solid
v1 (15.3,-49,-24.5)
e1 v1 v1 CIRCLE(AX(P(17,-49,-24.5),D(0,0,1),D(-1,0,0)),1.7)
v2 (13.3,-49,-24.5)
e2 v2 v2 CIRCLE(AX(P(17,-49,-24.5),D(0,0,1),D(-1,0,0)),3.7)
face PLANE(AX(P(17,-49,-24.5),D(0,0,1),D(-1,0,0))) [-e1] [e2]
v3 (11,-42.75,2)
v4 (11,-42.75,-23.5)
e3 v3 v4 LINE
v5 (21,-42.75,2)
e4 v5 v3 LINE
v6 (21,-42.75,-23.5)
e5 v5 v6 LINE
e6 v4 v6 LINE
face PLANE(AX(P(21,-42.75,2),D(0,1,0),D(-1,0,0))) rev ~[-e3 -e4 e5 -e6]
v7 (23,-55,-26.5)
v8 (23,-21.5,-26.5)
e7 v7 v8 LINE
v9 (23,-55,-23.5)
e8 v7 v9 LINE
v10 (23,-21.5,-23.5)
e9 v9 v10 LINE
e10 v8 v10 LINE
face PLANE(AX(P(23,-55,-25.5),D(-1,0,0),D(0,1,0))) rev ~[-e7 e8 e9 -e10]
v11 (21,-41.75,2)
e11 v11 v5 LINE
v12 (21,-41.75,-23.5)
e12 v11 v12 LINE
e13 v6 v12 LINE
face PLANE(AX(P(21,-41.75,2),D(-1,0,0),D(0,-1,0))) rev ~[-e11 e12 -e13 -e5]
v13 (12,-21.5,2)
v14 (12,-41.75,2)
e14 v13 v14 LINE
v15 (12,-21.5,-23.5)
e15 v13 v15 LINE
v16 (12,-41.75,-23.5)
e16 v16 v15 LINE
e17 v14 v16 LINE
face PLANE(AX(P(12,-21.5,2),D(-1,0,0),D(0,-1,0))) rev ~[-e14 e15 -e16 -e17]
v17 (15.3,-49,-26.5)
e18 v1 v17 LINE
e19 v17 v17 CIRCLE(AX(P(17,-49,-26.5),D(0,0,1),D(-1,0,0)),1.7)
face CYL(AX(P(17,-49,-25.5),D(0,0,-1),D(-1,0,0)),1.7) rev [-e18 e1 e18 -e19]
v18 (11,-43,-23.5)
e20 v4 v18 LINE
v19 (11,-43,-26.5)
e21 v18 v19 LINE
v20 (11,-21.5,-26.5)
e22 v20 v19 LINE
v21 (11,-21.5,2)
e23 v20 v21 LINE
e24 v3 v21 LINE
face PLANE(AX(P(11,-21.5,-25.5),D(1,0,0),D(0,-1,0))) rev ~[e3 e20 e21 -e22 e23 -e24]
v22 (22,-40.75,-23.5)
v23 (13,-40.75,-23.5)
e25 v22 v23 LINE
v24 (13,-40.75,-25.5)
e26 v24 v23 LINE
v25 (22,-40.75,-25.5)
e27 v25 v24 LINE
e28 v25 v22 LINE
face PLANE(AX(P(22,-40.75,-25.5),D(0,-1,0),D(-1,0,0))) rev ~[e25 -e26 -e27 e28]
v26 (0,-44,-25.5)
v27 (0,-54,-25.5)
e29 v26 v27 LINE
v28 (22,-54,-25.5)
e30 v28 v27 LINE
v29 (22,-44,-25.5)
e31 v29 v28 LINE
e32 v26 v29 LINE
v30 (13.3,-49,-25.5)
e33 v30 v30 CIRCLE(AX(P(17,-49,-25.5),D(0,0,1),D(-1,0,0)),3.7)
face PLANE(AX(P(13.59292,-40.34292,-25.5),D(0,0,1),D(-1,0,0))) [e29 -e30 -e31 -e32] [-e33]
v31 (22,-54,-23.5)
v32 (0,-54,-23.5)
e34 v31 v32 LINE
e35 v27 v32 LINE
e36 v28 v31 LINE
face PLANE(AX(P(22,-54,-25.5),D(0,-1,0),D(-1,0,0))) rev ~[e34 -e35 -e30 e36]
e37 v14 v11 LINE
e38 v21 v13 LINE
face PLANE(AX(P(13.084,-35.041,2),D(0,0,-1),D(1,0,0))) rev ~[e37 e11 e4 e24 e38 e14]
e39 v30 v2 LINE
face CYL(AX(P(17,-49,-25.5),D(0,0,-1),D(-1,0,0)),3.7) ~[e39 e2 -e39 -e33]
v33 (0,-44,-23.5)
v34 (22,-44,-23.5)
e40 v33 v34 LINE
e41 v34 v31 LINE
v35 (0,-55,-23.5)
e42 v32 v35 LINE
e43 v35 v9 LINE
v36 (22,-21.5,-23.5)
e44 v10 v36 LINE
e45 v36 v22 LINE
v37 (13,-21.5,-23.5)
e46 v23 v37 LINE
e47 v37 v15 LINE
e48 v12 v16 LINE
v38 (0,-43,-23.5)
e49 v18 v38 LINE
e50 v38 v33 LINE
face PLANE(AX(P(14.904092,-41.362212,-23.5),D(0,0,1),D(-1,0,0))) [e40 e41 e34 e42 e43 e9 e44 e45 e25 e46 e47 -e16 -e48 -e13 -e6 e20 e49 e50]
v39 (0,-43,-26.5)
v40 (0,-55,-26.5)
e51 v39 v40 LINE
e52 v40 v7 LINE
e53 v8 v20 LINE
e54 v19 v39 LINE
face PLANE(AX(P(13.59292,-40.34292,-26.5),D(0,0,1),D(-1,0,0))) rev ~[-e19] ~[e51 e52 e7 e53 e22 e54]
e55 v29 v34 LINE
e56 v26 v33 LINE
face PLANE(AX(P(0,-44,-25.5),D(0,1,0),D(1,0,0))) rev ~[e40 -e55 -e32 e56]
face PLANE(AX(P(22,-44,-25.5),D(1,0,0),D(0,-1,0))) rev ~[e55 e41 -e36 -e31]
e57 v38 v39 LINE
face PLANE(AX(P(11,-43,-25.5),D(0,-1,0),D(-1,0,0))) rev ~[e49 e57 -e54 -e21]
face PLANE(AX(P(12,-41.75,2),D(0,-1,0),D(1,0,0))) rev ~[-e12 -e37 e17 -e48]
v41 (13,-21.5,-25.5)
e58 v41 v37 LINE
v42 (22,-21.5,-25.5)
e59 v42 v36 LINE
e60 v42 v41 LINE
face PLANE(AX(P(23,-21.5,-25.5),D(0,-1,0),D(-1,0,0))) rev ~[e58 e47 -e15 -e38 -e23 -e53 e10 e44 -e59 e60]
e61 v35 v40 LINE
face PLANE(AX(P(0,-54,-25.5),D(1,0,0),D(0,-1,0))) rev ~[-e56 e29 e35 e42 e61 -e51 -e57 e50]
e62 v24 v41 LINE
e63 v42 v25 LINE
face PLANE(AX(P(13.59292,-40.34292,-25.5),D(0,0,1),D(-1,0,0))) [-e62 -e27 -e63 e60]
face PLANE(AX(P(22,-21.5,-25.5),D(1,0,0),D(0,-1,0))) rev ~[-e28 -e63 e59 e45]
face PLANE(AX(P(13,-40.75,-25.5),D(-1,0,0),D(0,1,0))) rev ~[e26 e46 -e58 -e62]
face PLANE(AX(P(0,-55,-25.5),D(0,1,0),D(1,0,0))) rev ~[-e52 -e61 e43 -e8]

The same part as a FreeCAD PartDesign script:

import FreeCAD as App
import Part
import Sketcher


def add_polygon(sketch, points):
    """Adds a closed chain of lines whose ends are joined by coincident constraints."""
    first, n = sketch.GeometryCount, len(points)
    for a, b in zip(points, points[1:] + points[:1]):
        sketch.addGeometry(Part.LineSegment(App.Vector(*a, 0), App.Vector(*b, 0)), False)
    for i in range(n):
        sketch.addConstraint(Sketcher.Constraint("Coincident", first + i, 2, first + (i + 1) % n, 1))

doc = App.newDocument("Part")
body = doc.addObject("PartDesign::Body", "Body")

sketch1 = doc.addObject("Sketcher::SketchObject", "Sketch")
body.addObject(sketch1)
sketch1.AttachmentSupport = (doc.XY_Plane, [""])
sketch1.MapMode = "FlatFace"
sketch1.AttachmentOffset = App.Placement(App.Vector(0, 0, 10), App.Rotation())
add_polygon(sketch1, [(-11, 0), (0, 0), (0, 12), (-23, 12), (-23, -21.5), (-11, -21.5)])
sketch1.addGeometry(Part.Circle(App.Vector(-17, 6, 0), App.Vector(0, 0, 1), 1.7), False)
sketch1.addConstraint([
    Sketcher.Constraint("Horizontal", 0),
    Sketcher.Constraint("Vertical", 1),
    Sketcher.Constraint("Horizontal", 2),
    Sketcher.Constraint("Vertical", 3),
    Sketcher.Constraint("Horizontal", 4),
    Sketcher.Constraint("Vertical", 5),
    Sketcher.Constraint("Coincident", 0, 2, -1, 1),
    Sketcher.Constraint("Equal", 4, 1),
    Sketcher.Constraint("Diameter", 6, 3.4),
    Sketcher.Constraint("DistanceX", 0, 1, 0, 2, 11.0),
    Sketcher.Constraint("DistanceX", 2, 2, 2, 1, 23.0),
    Sketcher.Constraint("DistanceY", 3, 2, 3, 1, 33.5),
    Sketcher.Constraint("DistanceX", 6, 3, -1, 1, 17.0),
    Sketcher.Constraint("DistanceY", -1, 1, 6, 3, 6.0),
])
pad1 = doc.addObject("PartDesign::Pad", "Pad")
body.addObject(pad1)
pad1.Profile = sketch1
pad1.Length = 1
body2 = doc.addObject("PartDesign::Body", "Body001")
doc.recompute()

body.Placement = App.Placement(App.Vector(0, 0, -36.5), App.Rotation(App.Vector(0, 0, 1), 0))
boolean = doc.addObject("PartDesign::Boolean", "Boolean")
body2.addObject(boolean)
boolean.Type = "Fuse"
boolean.addObjects([body])
body3 = doc.addObject("PartDesign::Body", "Body002")

sketch2 = doc.addObject("Sketcher::SketchObject", "Sketch001")
body3.addObject(sketch2)
sketch2.AttachmentSupport = (doc.getObject("XY_Plane002"), [""])
sketch2.MapMode = "FlatFace"
sketch2.AttachmentOffset = App.Placement(App.Vector(0, 0, 10), App.Rotation())
add_polygon(sketch2, [(0, 12), (-23, 12), (-23, -21.5), (-22, -21.5), (-22, -2.25), (-13, -2.25), (-13, -21.5), (-11, -21.5), (-11, 0), (0, 0), (0, 1), (-22, 1), (-22, 11), (0, 11)])
sketch2.addConstraint([
    Sketcher.Constraint("Horizontal", 0),
    Sketcher.Constraint("Vertical", 1),
    Sketcher.Constraint("Horizontal", 2),
    Sketcher.Constraint("Vertical", 3),
    Sketcher.Constraint("Horizontal", 4),
    Sketcher.Constraint("Vertical", 5),
    Sketcher.Constraint("Horizontal", 6),
    Sketcher.Constraint("Vertical", 7),
    Sketcher.Constraint("Horizontal", 8),
    Sketcher.Constraint("Vertical", 9),
    Sketcher.Constraint("Horizontal", 10),
    Sketcher.Constraint("Vertical", 11),
    Sketcher.Constraint("Horizontal", 12),
    Sketcher.Constraint("Vertical", 13),
    Sketcher.Constraint("Coincident", 8, 2, -1, 1),
    Sketcher.Constraint("PointOnObject", 12, 2, -2),
    Sketcher.Constraint("Horizontal", 2, 2, 5, 2),
    Sketcher.Constraint("Vertical", 3, 2, 10, 2),
    Sketcher.Constraint("Equal", 2, 9),
    Sketcher.Constraint("Equal", 9, 13),
    Sketcher.Constraint("DistanceX", 0, 2, 0, 1, 23.0),
    Sketcher.Constraint("DistanceX", 2, 1, 2, 2, 1.0),
    Sketcher.Constraint("DistanceX", 4, 1, 4, 2, 9.0),
    Sketcher.Constraint("DistanceX", 6, 1, 6, 2, 2.0),
    Sketcher.Constraint("DistanceY", 11, 1, 11, 2, 10.0),
    Sketcher.Constraint("DistanceY", 1, 2, 1, 1, 33.5),
    Sketcher.Constraint("DistanceY", 3, 1, 3, 2, 19.25),
])
pad2 = doc.addObject("PartDesign::Pad", "Pad001")
body3.addObject(pad2)
pad2.Profile = sketch2
pad2.Length = 2
body4 = doc.addObject("PartDesign::Body", "Body003")
doc.recompute()

body3.Placement = App.Placement(App.Vector(0, 0, -35.5), App.Rotation(App.Vector(0, 0, 1), 0))
boolean2 = doc.addObject("PartDesign::Boolean", "Boolean001")
body4.addObject(boolean2)
boolean2.Type = "Fuse"
boolean2.addObjects([body3])
body5 = doc.addObject("PartDesign::Body", "Body004")

sketch3 = doc.addObject("Sketcher::SketchObject", "Sketch002")
body5.addObject(sketch3)
sketch3.AttachmentSupport = (doc.getObject("XY_Plane004"), [""])
sketch3.MapMode = "FlatFace"
sketch3.AttachmentOffset = App.Placement(App.Vector(0, 0, 10), App.Rotation())
sketch3.addGeometry([
    Part.Circle(App.Vector(-17, 6, 0), App.Vector(0, 0, 1), 3.7),
    Part.Circle(App.Vector(-17, 6, 0), App.Vector(0, 0, 1), 1.7),
], False)
sketch3.addConstraint([
    Sketcher.Constraint("Coincident", 1, 3, 0, 3),
    Sketcher.Constraint("Diameter", 0, 7.4),
    Sketcher.Constraint("Diameter", 1, 3.4),
    Sketcher.Constraint("DistanceX", 0, 3, -1, 1, 17.0),
    Sketcher.Constraint("DistanceY", -1, 1, 0, 3, 6.0),
])
pad3 = doc.addObject("PartDesign::Pad", "Pad002")
body5.addObject(pad3)
pad3.Profile = sketch3
pad3.Length = 1
body6 = doc.addObject("PartDesign::Body", "Body005")
doc.recompute()

body5.Placement = App.Placement(App.Vector(0, 0, -35.5), App.Rotation(App.Vector(0, 0, 1), 0))
boolean3 = doc.addObject("PartDesign::Boolean", "Boolean002")
body6.addObject(boolean3)
boolean3.Type = "Fuse"
boolean3.addObjects([body5])
body7 = doc.addObject("PartDesign::Body", "Body006")

sketch4 = doc.addObject("Sketcher::SketchObject", "Sketch003")
body7.addObject(sketch4)
sketch4.AttachmentSupport = (doc.getObject("XY_Plane006"), [""])
sketch4.MapMode = "FlatFace"
add_polygon(sketch4, [(-11, -0.25), (-21, -0.25), (-21, -1.25), (-12, -1.25), (-12, -21.5), (-11, -21.5)])
sketch4.addConstraint([
    Sketcher.Constraint("Horizontal", 0),
    Sketcher.Constraint("Vertical", 1),
    Sketcher.Constraint("Horizontal", 2),
    Sketcher.Constraint("Vertical", 3),
    Sketcher.Constraint("Horizontal", 4),
    Sketcher.Constraint("Vertical", 5),
    Sketcher.Constraint("Equal", 4, 1),
    Sketcher.Constraint("DistanceX", 0, 2, 0, 1, 10.0),
    Sketcher.Constraint("DistanceX", 2, 1, 2, 2, 9.0),
    Sketcher.Constraint("DistanceX", 0, 2, -1, 1, 21.0),
    Sketcher.Constraint("DistanceY", 3, 2, 3, 1, 20.25),
    Sketcher.Constraint("DistanceY", 3, 2, -1, 1, 21.5),
])
pad4 = doc.addObject("PartDesign::Pad", "Pad003")
body7.addObject(pad4)
pad4.Profile = sketch4
pad4.Length = 27.5
pad4.Reversed = True
body8 = doc.addObject("PartDesign::Body", "Body007")
doc.recompute()

body7.Placement = App.Placement(App.Vector(0, 0, 2), App.Rotation(App.Vector(0, 0, 1), 0))
boolean4 = doc.addObject("PartDesign::Boolean", "Boolean003")
body8.addObject(boolean4)
boolean4.Type = "Fuse"
boolean4.addObjects([body7])
doc.recompute()

boolean5 = doc.addObject("PartDesign::Boolean", "Boolean004")
body8.addObject(boolean5)
boolean5.Type = "Fuse"
boolean5.addObjects([body2])
doc.recompute()

boolean6 = doc.addObject("PartDesign::Boolean", "Boolean005")
body8.addObject(boolean6)
boolean6.Type = "Fuse"
boolean6.addObjects([body4])
doc.recompute()

boolean7 = doc.addObject("PartDesign::Boolean", "Boolean006")
body8.addObject(boolean7)
boolean7.Type = "Fuse"
boolean7.addObjects([body6])
body9 = doc.addObject("PartDesign::Body", "Body008")
doc.recompute()

mirroring = doc.addObject("Part::Mirroring", "Mirroring")
mirroring.Source = body8
mirroring.Base = App.Vector(0, 0, 0)
mirroring.Normal = App.Vector(1, 0, 0)
body9.BaseFeature = mirroring
doc.recompute()
body10 = doc.addObject("PartDesign::Body", "Body009")
doc.recompute()

mirroring2 = doc.addObject("Part::Mirroring", "Mirroring001")
mirroring2.Source = body9
mirroring2.Base = App.Vector(0, -21.5, 0)
mirroring2.Normal = App.Vector(0, 1, 0)
body10.BaseFeature = mirroring2
doc.recompute()
body8.Visibility = False
body9.Visibility = False
mirroring.Visibility = False
mirroring2.Visibility = False

doc.recompute()
